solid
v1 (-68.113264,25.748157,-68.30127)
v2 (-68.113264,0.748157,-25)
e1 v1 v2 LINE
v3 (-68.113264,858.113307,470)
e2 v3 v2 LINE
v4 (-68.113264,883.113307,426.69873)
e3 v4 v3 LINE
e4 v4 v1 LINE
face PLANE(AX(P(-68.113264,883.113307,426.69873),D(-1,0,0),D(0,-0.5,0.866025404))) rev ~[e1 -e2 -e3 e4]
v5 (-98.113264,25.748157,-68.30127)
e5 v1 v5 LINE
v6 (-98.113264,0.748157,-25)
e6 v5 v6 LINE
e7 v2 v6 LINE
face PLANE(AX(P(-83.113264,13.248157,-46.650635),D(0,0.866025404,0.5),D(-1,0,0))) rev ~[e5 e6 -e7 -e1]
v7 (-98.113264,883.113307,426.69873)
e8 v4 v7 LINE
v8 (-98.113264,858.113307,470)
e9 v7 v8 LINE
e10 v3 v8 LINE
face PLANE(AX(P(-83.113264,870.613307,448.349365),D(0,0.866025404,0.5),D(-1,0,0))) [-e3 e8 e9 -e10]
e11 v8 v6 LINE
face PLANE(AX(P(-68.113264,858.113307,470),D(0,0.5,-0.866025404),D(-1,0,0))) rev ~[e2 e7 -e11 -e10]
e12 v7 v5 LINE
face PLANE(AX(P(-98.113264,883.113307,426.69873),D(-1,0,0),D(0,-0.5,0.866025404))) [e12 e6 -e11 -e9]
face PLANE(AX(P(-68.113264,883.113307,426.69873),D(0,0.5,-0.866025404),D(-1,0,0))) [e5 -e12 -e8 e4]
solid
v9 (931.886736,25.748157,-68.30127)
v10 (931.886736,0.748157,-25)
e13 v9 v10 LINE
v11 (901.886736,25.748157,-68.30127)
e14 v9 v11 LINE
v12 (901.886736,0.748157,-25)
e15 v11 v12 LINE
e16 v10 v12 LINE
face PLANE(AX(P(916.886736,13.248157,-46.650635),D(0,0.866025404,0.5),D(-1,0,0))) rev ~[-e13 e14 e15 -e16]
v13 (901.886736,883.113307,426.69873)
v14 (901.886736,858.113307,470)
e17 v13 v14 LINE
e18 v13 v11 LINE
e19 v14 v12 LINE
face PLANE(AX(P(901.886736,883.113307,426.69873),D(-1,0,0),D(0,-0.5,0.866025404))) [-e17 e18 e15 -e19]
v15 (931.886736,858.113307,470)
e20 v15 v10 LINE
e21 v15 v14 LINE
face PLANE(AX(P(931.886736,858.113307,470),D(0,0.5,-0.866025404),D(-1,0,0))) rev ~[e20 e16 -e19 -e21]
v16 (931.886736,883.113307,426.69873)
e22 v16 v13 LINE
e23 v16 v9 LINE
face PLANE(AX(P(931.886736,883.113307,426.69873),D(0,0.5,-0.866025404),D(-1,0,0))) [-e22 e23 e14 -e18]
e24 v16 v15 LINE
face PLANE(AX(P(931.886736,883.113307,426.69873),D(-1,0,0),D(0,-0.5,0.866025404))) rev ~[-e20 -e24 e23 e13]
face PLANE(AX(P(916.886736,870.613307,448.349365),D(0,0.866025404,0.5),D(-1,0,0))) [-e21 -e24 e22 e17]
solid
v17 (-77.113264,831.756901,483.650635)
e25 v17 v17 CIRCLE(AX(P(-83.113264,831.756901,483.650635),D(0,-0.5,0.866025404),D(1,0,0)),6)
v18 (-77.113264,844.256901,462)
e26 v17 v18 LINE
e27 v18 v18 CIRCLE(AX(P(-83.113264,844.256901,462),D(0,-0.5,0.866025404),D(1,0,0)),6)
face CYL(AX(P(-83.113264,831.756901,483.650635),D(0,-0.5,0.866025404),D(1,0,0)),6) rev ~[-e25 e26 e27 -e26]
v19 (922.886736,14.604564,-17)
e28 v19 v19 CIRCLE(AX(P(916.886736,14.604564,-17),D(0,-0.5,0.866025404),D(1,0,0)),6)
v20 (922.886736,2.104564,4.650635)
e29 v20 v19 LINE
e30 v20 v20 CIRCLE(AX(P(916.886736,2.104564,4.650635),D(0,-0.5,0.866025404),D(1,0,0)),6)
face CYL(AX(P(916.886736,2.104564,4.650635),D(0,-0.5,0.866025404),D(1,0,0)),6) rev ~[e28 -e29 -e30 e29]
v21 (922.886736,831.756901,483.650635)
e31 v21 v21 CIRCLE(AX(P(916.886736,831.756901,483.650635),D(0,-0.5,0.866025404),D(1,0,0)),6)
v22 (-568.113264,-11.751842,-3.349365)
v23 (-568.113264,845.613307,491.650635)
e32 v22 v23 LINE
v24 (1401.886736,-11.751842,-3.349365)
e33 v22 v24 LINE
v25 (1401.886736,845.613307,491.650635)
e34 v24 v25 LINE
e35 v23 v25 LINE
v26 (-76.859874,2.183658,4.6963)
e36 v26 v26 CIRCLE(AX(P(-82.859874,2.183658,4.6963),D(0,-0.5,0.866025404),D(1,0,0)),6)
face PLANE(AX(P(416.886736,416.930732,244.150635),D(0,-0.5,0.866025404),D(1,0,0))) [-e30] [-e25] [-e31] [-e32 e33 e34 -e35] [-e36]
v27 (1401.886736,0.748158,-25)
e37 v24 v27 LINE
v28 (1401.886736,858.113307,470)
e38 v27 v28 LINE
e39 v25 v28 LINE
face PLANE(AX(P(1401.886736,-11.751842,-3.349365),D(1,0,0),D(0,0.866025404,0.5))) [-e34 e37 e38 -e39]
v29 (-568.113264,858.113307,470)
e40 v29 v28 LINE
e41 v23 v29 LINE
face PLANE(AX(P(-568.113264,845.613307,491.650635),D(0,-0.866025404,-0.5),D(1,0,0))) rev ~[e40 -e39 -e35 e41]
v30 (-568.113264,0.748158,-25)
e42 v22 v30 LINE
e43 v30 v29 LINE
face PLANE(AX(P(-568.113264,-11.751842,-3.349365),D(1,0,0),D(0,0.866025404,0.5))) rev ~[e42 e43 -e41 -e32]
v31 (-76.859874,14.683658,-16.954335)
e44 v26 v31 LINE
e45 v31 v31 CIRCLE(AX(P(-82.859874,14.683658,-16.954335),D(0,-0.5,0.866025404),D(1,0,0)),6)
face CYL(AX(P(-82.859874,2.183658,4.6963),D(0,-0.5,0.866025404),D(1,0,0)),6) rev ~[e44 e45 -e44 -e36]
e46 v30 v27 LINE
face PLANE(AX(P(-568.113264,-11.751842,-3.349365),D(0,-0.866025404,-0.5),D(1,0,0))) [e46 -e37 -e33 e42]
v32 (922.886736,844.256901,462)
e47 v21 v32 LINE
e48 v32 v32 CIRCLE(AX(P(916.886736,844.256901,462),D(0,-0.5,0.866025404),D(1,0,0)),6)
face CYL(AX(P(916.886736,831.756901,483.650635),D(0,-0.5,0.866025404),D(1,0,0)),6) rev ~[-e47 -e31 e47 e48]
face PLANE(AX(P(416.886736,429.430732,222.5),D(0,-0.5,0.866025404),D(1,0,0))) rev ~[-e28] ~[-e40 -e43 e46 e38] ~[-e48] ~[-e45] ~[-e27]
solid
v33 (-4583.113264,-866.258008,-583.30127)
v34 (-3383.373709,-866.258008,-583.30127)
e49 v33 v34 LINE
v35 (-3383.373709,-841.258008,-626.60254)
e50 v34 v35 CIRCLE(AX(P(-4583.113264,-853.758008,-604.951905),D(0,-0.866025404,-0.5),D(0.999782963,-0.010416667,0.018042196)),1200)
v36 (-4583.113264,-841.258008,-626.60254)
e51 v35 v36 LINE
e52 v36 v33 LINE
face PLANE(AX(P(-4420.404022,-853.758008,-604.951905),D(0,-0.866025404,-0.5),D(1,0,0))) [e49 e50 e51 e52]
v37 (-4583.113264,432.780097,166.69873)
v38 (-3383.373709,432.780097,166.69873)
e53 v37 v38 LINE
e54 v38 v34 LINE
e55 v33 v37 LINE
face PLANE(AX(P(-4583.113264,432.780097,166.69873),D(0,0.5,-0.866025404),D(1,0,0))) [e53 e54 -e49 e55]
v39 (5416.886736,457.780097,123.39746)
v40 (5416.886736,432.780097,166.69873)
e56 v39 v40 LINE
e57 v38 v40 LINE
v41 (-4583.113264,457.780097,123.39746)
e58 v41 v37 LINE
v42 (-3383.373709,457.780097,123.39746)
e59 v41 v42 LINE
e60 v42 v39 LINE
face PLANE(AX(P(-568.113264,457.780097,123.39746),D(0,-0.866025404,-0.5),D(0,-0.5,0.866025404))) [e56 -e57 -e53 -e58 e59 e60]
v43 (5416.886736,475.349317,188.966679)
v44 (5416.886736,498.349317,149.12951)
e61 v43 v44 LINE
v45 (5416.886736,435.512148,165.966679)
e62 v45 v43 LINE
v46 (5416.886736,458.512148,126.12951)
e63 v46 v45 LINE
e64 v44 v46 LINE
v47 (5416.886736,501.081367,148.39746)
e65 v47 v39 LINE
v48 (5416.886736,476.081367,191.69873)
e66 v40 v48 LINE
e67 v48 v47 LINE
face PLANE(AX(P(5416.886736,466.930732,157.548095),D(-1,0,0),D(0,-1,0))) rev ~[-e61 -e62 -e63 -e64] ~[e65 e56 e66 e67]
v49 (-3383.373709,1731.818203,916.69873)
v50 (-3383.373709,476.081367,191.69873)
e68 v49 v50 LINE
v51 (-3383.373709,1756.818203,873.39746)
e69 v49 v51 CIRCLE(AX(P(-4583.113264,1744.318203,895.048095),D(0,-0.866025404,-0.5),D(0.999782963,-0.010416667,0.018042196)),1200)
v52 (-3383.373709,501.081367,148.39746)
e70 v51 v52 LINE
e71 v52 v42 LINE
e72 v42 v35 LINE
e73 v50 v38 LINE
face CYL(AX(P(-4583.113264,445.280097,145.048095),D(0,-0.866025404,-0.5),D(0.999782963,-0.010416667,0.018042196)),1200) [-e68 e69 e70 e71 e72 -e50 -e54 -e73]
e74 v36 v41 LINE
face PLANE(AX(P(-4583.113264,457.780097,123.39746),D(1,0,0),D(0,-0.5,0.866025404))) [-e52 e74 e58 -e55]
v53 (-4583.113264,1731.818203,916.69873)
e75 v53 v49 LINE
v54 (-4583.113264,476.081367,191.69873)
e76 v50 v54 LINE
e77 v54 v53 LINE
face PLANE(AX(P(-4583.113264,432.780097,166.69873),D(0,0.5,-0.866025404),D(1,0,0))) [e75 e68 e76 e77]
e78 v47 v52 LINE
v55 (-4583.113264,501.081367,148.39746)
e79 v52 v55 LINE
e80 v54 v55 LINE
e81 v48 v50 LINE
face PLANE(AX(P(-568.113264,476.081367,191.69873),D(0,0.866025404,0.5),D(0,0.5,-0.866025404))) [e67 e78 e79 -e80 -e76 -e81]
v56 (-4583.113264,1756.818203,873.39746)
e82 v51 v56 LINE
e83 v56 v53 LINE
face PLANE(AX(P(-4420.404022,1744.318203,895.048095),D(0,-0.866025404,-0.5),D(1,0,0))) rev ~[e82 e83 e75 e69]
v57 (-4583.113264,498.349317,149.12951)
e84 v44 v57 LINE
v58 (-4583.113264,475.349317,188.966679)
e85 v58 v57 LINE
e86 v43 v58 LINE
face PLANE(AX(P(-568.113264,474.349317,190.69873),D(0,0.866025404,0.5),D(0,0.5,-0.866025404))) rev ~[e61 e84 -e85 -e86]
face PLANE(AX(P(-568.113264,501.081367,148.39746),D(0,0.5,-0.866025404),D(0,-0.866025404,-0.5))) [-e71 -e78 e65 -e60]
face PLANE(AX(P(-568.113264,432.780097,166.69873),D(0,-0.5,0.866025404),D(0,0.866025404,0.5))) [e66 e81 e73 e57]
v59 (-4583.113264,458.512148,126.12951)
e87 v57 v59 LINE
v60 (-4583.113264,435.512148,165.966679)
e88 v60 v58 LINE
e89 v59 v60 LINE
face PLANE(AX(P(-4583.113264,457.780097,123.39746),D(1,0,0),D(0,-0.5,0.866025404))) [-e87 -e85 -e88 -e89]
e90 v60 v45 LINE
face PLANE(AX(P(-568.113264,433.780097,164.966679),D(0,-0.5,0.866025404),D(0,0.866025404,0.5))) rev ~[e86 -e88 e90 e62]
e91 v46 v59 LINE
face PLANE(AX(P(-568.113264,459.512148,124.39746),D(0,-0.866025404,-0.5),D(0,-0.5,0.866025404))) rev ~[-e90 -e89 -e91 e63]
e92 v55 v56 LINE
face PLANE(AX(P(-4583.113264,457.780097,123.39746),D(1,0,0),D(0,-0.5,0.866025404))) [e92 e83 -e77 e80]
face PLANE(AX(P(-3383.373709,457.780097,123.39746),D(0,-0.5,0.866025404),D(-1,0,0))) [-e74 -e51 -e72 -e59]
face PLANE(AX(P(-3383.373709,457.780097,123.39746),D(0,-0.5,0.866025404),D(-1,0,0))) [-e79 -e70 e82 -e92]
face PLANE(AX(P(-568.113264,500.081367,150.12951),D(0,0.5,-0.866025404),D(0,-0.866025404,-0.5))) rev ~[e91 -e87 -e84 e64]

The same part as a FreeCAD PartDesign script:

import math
import FreeCAD as App
import Part
import Sketcher
from FreeCAD import Vector
Q = App.Units.Quantity


def faces_at(feature, points):
    """Names of the faces that lie closest to the given points."""
    faces = feature.Shape.Faces
    near = lambda p: min(range(len(faces)), key=lambda i: faces[i].distToShape(Part.Vertex(*p))[0])
    return sorted({f"Face{near(p) + 1}" for p in points})


def add_polygon(sketch, points):
    """Adds a closed chain of lines whose ends are joined by coincident constraints."""
    first, n = sketch.GeometryCount, len(points)
    for a, b in zip(points, points[1:] + points[:1]):
        sketch.addGeometry(Part.LineSegment(App.Vector(*a, 0), App.Vector(*b, 0)), False)
    for i in range(n):
        sketch.addConstraint(Sketcher.Constraint("Coincident", first + i, 2, first + (i + 1) % n, 1))

doc = App.newDocument("Part")
body = doc.addObject("PartDesign::Body", "Body")

sketch1 = doc.addObject("Sketcher::SketchObject", "Sketch")
body.addObject(sketch1)
sketch1.AttachmentSupport = (doc.XY_Plane, [""])
sketch1.MapMode = "FlatFace"
add_polygon(sketch1, [(-568, 991), (-568, 1), (1402, 1), (1402, 991)])
sketch1.addGeometry(Part.Circle(Vector(-83, 17, 0), Vector(0, 0, 1), 6), False)
sketch1.addGeometry(Part.Circle(Vector(917, 17, 0), Vector(0, 0, 1), 6), False)
sketch1.addGeometry(Part.Circle(Vector(-83, 975, 0), Vector(0, 0, 1), 6), False)
sketch1.addGeometry(Part.Circle(Vector(917, 975, 0), Vector(0, 0, 1), 6), False)
sketch1.addConstraint(Sketcher.Constraint("Vertical", 0))
sketch1.addConstraint(Sketcher.Constraint("Horizontal", 1))
sketch1.addConstraint(Sketcher.Constraint("Vertical", 2))
sketch1.addConstraint(Sketcher.Constraint("Horizontal", 3))
sketch1.addConstraint(Sketcher.Constraint("Equal", 4, 5))
sketch1.addConstraint(Sketcher.Constraint("Equal", 5, 6))
sketch1.addConstraint(Sketcher.Constraint("Equal", 6, 7))
sketch1.addConstraint(Sketcher.Constraint("Horizontal", 6, 3, 7, 3))
sketch1.addConstraint(Sketcher.Constraint("Vertical", 5, 3, 7, 3))
sketch1.addConstraint(Sketcher.Constraint("Diameter", 4, 12.0))
sketch1.addConstraint(Sketcher.Constraint("DistanceX", 1, 1, 1, 2, 1970.0))
sketch1.addConstraint(Sketcher.Constraint("DistanceY", 0, 2, 0, 1, 990.0))
sketch1.addConstraint(Sketcher.Constraint("DistanceX", 6, 3, 5, 3, 1000.0))
sketch1.addConstraint(Sketcher.Constraint("DistanceY", 5, 3, 6, 3, 958.0))
sketch1.addConstraint(Sketcher.Constraint("DistanceX", 0, 2, 6, 3, 485.0))
sketch1.addConstraint(Sketcher.Constraint("DistanceY", 0, 2, 6, 3, 974.0))
sketch1.addConstraint(Sketcher.Constraint("DistanceX", 4, 3, 5, 3, 999.74661))
sketch1.addConstraint(Sketcher.Constraint("DistanceY", 5, 3, 4, 3, 0.09133))
sketch1.addConstraint(Sketcher.Constraint("DistanceX", 4, 3, -1, 1, 82.859874))
sketch1.addConstraint(Sketcher.Constraint("DistanceY", -1, 1, 4, 3, 16.839487))
pad1 = doc.addObject("PartDesign::Pad", "Pad")
body.addObject(pad1)
pad1.Profile = sketch1
pad1.Length = 25
pad1.Reversed = True
body2 = doc.addObject("PartDesign::Body", "Body001")
doc.recompute()

body.Placement = App.Placement(Vector(0, -12.399766, -3.723444), App.Rotation(Vector(1, 0, 0), 30))
boolean = doc.addObject("PartDesign::Boolean", "Boolean")
body2.addObject(boolean)
boolean.Type = "Fuse"
boolean.addObjects([body])
body3 = doc.addObject("PartDesign::Body", "Body002")

sketch2 = doc.addObject("Sketcher::SketchObject", "Sketch001")
body3.addObject(sketch2)
sketch2.Placement = App.Placement(Vector(0, 847.10095, 489.073962), App.Rotation(Vector(-1, 0, 0), Vector(0, -0.5, 0.866025404), Vector(0, 0.866025404, 0.5), "ZXY"))
add_polygon(sketch2, [(68, -22), (68, -72), (98, -72), (98, -22)])
sketch2.addConstraint(Sketcher.Constraint("Vertical", 0))
sketch2.addConstraint(Sketcher.Constraint("Horizontal", 1))
sketch2.addConstraint(Sketcher.Constraint("Vertical", 2))
sketch2.addConstraint(Sketcher.Constraint("Horizontal", 3))
sketch2.addConstraint(Sketcher.Constraint("DistanceX", 1, 1, 1, 2, 30.0))
sketch2.addConstraint(Sketcher.Constraint("DistanceY", 0, 2, 0, 1, 50.0))
sketch2.addConstraint(Sketcher.Constraint("DistanceX", -1, 1, 0, 2, 68.113264))
sketch2.addConstraint(Sketcher.Constraint("DistanceY", 0, 2, -1, 1, 72.024714))
pad2 = doc.addObject("PartDesign::Pad", "Pad001")
body3.addObject(pad2)
pad2.Profile = sketch2
pad2.Length = 990
pad2.Reversed = True
body4 = doc.addObject("PartDesign::Body", "Body003")

sketch3 = doc.addObject("Sketcher::SketchObject", "Sketch002")
body4.addObject(sketch3)
sketch3.Placement = App.Placement(Vector(0, 847.10095, 489.073962), App.Rotation(Vector(-1, 0, 0), Vector(0, -0.5, 0.866025404), Vector(0, 0.866025404, 0.5), "ZXY"))
add_polygon(sketch3, [(-932, -22), (-932, -72), (-902, -72), (-902, -22)])
sketch3.addConstraint(Sketcher.Constraint("Vertical", 0))
sketch3.addConstraint(Sketcher.Constraint("Horizontal", 1))
sketch3.addConstraint(Sketcher.Constraint("Vertical", 2))
sketch3.addConstraint(Sketcher.Constraint("Horizontal", 3))
sketch3.addConstraint(Sketcher.Constraint("DistanceX", 1, 1, 1, 2, 30.0))
sketch3.addConstraint(Sketcher.Constraint("DistanceY", 0, 2, 0, 1, 50.0))
sketch3.addConstraint(Sketcher.Constraint("DistanceX", 0, 2, -1, 1, 931.886736))
sketch3.addConstraint(Sketcher.Constraint("DistanceY", 0, 2, -1, 1, 72.024714))
pad3 = doc.addObject("PartDesign::Pad", "Pad002")
body4.addObject(pad3)
pad3.Profile = sketch3
pad3.Length = 990
pad3.Reversed = True
body5 = doc.addObject("PartDesign::Body", "Body004")

sketch4 = doc.addObject("Sketcher::SketchObject", "Sketch003")
body5.addObject(sketch4)
sketch4.AttachmentSupport = (doc.getObject("YZ_Plane004"), [""])
sketch4.MapMode = "FlatFace"
sketch4.AttachmentOffset = App.Placement(Vector(0, 0, -568.113264), App.Rotation())
add_polygon(sketch4, [(433, 167), (476, 192), (501, 148), (458, 123)])
sketch4.addConstraint(Sketcher.Constraint("Perpendicular", 0, 1))
sketch4.addConstraint(Sketcher.Constraint("Perpendicular", 1, 2))
sketch4.addConstraint(Sketcher.Constraint("Perpendicular", 2, 3))
sketch4.addConstraint(Sketcher.Constraint("Equal", 0, 1))
sketch4.addConstraint(Sketcher.Constraint("Angle", 0, Q("30 deg")))
sketch4.addConstraint(Sketcher.Constraint("Distance", 0, 50.0))
sketch4.addConstraint(Sketcher.Constraint("DistanceY", -1, 1, 0, 2, 191.69873))
sketch4.addConstraint(Sketcher.Constraint("DistanceX", -1, 1, 0, 2, 476.081367))
pad4 = doc.addObject("PartDesign::Pad", "Pad003")
body5.addObject(pad4)
pad4.Profile = sketch4
pad4.Type = "TwoLengths"
pad4.Length = 4015
pad4.Length2 = 5985
pad4.Reversed = True
doc.recompute()

thickness = doc.addObject("PartDesign::Thickness", "Thickness")
body5.addObject(thickness)
thickness.Base = (pad4, faces_at(pad4, [(-4583.113, 466.931, 157.548), (5416.887, 466.931, 157.548)]))
thickness.Value = 2
thickness.Reversed = True
thickness.Join = "Arc"

sketch5 = doc.addObject("Sketcher::SketchObject", "Sketch004")
body5.addObject(sketch5)
sketch5.Placement = App.Placement(Vector(0, 396.76774, 229.073962), App.Rotation(Vector(1, 0, 0), Vector(0, -0.5, 0.866025404), Vector(0, -0.866025404, -0.5), "ZXY"))
sketch5.addGeometry(Part.LineSegment(Vector(-4583, -72, 0), Vector(-3383, -72, 0)), False)
sketch5.addGeometry(Part.ArcOfCircle(Part.Circle(Vector(-4583, -97, 0), Vector(0, 0, 1), 1200), math.radians(1), math.radians(359)), False)
sketch5.addGeometry(Part.LineSegment(Vector(-3383, -122, 0), Vector(-4583, -122, 0)), False)
sketch5.addGeometry(Part.LineSegment(Vector(-4583, -122, 0), Vector(-4583, -72, 0)), False)
sketch5.addConstraint(Sketcher.Constraint("Coincident", 0, 2, 1, 1))
sketch5.addConstraint(Sketcher.Constraint("Coincident", 1, 2, 2, 1))
sketch5.addConstraint(Sketcher.Constraint("Coincident", 2, 2, 3, 1))
sketch5.addConstraint(Sketcher.Constraint("Coincident", 3, 2, 0, 1))
sketch5.addConstraint(Sketcher.Constraint("Horizontal", 0))
sketch5.addConstraint(Sketcher.Constraint("Horizontal", 2))
sketch5.addConstraint(Sketcher.Constraint("Vertical", 3))
sketch5.addConstraint(Sketcher.Constraint("Vertical", 1, 3, 2, 2))
sketch5.addConstraint(Sketcher.Constraint("Equal", 0, 2))
sketch5.addConstraint(Sketcher.Constraint("Radius", 1, 1200.0))
sketch5.addConstraint(Sketcher.Constraint("DistanceY", 3, 1, 3, 2, 50.0))
sketch5.addConstraint(Sketcher.Constraint("DistanceX", 0, 2, -1, 1, 3383.373709))
sketch5.addConstraint(Sketcher.Constraint("DistanceY", 1, 3, -1, 1, 97.024714))
pad5 = doc.addObject("PartDesign::Pad", "Pad004")
body5.addObject(pad5)
pad5.Profile = sketch5
pad5.Length = 3000
pad5.Midplane = True

doc.recompute()
